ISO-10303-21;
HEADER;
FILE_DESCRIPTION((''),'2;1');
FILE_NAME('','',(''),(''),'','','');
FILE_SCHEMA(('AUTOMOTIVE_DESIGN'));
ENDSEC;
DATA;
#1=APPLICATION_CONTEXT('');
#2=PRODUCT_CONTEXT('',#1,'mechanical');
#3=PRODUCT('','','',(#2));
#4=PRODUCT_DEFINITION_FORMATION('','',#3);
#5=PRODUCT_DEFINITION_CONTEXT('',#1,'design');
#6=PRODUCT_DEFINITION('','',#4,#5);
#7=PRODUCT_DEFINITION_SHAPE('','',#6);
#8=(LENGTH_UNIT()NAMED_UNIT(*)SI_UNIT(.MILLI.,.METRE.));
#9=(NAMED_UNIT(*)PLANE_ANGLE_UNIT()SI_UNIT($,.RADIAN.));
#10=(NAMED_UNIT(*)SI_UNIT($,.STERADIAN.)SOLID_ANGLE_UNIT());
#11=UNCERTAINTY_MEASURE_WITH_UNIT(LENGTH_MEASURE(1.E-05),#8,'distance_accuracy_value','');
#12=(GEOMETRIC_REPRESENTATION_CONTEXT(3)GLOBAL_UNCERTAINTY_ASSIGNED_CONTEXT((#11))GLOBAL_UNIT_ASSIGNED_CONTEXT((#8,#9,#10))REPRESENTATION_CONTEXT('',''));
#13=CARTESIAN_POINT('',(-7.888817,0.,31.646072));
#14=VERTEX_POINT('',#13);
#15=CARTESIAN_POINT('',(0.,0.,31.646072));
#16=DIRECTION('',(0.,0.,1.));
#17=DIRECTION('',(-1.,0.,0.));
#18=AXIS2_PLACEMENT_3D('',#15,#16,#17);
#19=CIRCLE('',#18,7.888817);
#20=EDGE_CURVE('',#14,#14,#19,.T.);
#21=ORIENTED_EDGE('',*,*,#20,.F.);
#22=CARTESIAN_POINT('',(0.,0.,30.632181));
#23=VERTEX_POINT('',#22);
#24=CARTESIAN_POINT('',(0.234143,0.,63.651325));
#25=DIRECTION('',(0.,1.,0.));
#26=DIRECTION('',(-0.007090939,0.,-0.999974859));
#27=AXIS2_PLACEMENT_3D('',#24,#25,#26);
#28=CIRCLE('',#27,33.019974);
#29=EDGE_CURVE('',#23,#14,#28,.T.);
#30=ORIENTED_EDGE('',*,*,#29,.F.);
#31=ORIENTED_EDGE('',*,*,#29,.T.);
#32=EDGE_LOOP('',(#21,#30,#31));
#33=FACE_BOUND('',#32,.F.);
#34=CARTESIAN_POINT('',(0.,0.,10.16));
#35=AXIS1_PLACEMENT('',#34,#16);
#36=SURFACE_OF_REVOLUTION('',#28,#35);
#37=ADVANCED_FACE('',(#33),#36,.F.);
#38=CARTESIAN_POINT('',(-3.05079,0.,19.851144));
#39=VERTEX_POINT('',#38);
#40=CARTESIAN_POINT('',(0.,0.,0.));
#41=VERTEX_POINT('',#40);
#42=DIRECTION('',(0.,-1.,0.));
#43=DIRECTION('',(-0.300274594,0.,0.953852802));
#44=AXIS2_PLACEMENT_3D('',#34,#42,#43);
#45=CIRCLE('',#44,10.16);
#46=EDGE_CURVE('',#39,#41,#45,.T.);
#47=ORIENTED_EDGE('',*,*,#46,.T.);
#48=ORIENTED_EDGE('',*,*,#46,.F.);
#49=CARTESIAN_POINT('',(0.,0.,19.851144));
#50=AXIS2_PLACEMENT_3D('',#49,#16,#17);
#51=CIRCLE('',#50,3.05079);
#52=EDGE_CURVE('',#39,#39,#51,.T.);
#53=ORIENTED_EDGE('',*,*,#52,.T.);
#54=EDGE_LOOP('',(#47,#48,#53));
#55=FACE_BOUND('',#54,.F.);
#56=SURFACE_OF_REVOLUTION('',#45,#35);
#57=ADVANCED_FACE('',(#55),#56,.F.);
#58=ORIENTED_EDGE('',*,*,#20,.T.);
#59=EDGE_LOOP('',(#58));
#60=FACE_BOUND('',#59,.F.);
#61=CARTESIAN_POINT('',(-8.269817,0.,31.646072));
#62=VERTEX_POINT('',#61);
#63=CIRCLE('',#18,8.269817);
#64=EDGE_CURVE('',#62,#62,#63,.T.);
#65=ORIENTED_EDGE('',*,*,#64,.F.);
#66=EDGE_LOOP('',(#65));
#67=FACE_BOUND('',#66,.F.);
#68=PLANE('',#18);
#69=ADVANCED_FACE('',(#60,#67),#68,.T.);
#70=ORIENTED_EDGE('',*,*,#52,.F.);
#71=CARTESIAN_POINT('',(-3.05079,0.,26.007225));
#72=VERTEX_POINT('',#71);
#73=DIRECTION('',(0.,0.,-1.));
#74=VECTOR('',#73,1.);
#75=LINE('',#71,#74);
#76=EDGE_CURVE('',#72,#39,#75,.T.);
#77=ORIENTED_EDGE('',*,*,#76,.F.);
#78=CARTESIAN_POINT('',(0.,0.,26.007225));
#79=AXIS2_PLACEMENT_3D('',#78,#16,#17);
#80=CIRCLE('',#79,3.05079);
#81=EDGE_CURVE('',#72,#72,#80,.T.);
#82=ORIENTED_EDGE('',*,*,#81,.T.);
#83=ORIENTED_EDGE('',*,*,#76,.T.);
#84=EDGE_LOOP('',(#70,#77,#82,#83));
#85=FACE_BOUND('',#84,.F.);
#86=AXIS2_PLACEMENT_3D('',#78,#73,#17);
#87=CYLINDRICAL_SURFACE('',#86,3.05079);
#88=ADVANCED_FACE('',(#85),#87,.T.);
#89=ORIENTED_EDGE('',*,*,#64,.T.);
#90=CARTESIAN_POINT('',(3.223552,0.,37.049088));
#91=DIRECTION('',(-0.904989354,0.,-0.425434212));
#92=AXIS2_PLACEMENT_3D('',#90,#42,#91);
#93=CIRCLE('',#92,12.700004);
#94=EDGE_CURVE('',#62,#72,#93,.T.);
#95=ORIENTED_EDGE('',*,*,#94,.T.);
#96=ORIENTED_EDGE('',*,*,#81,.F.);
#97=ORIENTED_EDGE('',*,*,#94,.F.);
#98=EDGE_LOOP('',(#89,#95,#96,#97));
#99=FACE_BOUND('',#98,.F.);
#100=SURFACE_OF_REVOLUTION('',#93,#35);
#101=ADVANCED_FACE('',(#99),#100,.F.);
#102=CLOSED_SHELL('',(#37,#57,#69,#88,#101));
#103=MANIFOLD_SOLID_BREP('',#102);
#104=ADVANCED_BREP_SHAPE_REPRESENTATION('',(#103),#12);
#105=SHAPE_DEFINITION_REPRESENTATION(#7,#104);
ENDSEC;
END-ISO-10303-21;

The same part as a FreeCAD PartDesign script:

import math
import FreeCAD as App
import Part
import Sketcher

V = App.Vector
Q = App.Units.Quantity

doc = App.newDocument("Part")
body = doc.addObject("PartDesign::Body", "Body")

# Sketch on XZ plane
sketch1 = body.newObject("Sketcher::SketchObject", "Sketch")
sketch1.AttachmentSupport = (doc.getObject("XZ_Plane"), [""])
sketch1.MapMode = "FlatFace"
sketch1.addGeometry([
    Part.ArcOfCircle(Part.Circle(V(0, 10.16, 0), V(0, 0, 1), 10.16), math.radians(107), math.radians(270)),  # 0
    Part.LineSegment(V(0, 0, 0), V(0, 30.63, 0)),  # 1
    Part.ArcOfCircle(Part.Circle(V(0.23, 63.65, 0), V(0, 0, 1), 33.02), math.radians(-104.24), math.radians(-90.41)),  # 2
    Part.LineSegment(V(-7.89, 31.65, 0), V(-8.27, 31.65, 0)),  # 3
    Part.ArcOfCircle(Part.Circle(V(3.22, 37.05, 0), V(0, 0, 1), 12.7), math.radians(-155), math.radians(-120)),  # 4
    Part.LineSegment(V(-3.05, 26.01, 0), V(-3.05, 19.85, 0)),  # 5
], False)
sketch1.addConstraint([
    Sketcher.Constraint("Coincident", 0, 2, 1, 1),
    Sketcher.Constraint("Coincident", 1, 2, 2, 2),
    Sketcher.Constraint("Coincident", 2, 1, 3, 1),
    Sketcher.Constraint("Coincident", 3, 2, 4, 1),
    Sketcher.Constraint("Coincident", 4, 2, 5, 1),
    Sketcher.Constraint("Coincident", 5, 2, 0, 1),
    Sketcher.Constraint("Vertical", 1),
    Sketcher.Constraint("Horizontal", 3),
    Sketcher.Constraint("Vertical", 5),
    Sketcher.Constraint("Coincident", 0, 2, -1, 1),
    Sketcher.Constraint("PointOnObject", 0, 3, -2),
    Sketcher.Constraint("Radius", 0, Q("0.4 in")),
    Sketcher.Constraint("Radius", 4, Q("0.5000002 in")),
    Sketcher.Constraint("DistanceX", 3, 2, 3, 1, Q("0.015 in")),
    Sketcher.Constraint("Radius", 2, 33.019974),
    Sketcher.Constraint("DistanceY", 1, 1, 1, 2, 30.632181),
    Sketcher.Constraint("DistanceY", 5, 2, 5, 1, 6.156081),
    Sketcher.Constraint("DistanceX", -1, 1, 4, 3, 3.223552),
    Sketcher.Constraint("DistanceY", -1, 1, 4, 3, 37.049088),
    Sketcher.Constraint("DistanceY", -1, 1, 2, 1, 31.646072),
])
revolution = body.newObject("PartDesign::Revolution", "Revolution")
revolution.Profile = sketch1
revolution.ReferenceAxis = (sketch1, ["V_Axis"])
revolution.Angle = 360

doc.recompute()
